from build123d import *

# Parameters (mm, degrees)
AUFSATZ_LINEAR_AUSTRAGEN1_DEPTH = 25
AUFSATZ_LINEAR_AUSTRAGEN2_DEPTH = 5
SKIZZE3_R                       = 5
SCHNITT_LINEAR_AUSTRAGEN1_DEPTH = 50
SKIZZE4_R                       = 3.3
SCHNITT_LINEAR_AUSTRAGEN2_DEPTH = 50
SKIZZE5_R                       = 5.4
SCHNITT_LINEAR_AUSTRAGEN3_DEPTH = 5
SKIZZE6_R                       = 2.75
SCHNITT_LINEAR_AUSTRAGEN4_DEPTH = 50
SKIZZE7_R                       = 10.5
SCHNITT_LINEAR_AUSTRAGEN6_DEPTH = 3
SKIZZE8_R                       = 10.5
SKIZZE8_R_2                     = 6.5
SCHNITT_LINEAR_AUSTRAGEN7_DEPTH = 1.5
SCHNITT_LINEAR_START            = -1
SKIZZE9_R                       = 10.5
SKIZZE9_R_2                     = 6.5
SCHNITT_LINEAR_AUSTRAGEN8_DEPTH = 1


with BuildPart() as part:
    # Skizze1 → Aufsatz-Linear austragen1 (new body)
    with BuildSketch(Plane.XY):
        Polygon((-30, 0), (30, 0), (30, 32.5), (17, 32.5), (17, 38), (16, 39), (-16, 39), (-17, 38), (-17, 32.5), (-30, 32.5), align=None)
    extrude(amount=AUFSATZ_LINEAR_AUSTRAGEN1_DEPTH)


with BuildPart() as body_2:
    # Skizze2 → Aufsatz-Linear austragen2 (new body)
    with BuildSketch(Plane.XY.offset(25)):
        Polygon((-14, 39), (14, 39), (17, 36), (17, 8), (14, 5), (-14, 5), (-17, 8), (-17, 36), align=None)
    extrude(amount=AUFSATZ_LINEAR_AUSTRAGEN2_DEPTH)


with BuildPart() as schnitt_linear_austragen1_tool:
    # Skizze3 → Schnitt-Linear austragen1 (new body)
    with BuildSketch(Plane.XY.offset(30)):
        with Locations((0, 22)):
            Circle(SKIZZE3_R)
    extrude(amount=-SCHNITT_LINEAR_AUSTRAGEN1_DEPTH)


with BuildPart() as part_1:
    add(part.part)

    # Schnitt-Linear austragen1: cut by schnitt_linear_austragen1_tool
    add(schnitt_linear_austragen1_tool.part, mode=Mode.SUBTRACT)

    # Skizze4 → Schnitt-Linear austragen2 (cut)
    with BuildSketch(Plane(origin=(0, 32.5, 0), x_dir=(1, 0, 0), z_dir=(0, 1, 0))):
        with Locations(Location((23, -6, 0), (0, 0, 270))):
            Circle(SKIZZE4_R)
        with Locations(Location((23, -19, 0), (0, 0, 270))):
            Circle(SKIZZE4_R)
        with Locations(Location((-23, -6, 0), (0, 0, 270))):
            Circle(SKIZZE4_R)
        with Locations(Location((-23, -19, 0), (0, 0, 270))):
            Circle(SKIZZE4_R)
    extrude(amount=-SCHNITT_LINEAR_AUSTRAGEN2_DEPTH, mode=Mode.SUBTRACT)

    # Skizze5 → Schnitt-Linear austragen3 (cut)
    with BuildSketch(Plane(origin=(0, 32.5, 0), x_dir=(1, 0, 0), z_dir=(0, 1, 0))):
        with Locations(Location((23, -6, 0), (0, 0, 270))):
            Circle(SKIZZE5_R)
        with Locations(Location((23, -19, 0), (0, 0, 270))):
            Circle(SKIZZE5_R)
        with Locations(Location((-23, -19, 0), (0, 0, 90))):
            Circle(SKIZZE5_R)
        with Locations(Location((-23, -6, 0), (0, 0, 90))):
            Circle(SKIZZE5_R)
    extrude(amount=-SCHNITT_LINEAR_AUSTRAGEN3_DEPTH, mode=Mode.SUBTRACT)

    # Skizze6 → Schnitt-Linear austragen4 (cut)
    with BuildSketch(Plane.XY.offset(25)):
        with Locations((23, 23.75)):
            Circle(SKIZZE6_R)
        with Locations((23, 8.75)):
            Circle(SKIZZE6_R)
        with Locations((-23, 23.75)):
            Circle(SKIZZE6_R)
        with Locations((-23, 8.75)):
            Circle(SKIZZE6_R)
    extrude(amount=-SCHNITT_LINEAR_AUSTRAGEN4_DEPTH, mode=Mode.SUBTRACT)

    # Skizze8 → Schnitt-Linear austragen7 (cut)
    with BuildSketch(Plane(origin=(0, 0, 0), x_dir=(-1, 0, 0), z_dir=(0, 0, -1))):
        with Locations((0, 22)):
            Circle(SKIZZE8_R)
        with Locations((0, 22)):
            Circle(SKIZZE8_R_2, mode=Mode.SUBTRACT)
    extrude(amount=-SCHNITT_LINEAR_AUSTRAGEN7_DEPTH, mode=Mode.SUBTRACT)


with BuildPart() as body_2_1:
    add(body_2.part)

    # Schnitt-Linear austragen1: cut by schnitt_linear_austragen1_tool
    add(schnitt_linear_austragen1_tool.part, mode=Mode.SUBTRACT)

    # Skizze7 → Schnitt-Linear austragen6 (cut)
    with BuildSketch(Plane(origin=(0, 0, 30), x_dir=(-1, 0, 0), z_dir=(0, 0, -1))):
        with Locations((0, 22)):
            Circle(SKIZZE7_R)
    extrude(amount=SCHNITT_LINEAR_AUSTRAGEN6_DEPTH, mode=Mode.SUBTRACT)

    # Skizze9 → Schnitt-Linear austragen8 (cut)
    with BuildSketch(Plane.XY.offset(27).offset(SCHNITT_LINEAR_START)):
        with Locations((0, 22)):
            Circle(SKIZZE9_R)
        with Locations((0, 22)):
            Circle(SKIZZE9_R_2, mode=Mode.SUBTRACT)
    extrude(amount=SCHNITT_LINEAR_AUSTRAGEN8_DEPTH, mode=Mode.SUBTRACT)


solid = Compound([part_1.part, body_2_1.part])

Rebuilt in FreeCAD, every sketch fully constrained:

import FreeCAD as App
import Part
import Sketcher
from FreeCAD import Vector
Q = App.Units.Quantity


def add_polygon(sketch, points):
    """Adds a closed chain of lines whose ends are joined by coincident constraints."""
    first, n = sketch.GeometryCount, len(points)
    for a, b in zip(points, points[1:] + points[:1]):
        sketch.addGeometry(Part.LineSegment(App.Vector(*a, 0), App.Vector(*b, 0)), False)
    for i in range(n):
        sketch.addConstraint(Sketcher.Constraint("Coincident", first + i, 2, first + (i + 1) % n, 1))

doc = App.newDocument("Part")
body = doc.addObject("PartDesign::Body", "Body")

# Sketch on XY plane
sketch1 = doc.addObject("Sketcher::SketchObject", "Sketch")
body.addObject(sketch1)
sketch1.AttachmentSupport = (doc.XY_Plane, [""])
sketch1.MapMode = "FlatFace"
add_polygon(sketch1, [(-30, 0), (30, 0), (30, 32.5), (17, 32.5), (17, 38), (16, 39), (-16, 39), (-17, 38), (-17, 32.5), (-30, 32.5)])  # lines 0-9
sketch1.addConstraint(Sketcher.Constraint("Horizontal", 0))
sketch1.addConstraint(Sketcher.Constraint("Vertical", 1))
sketch1.addConstraint(Sketcher.Constraint("Horizontal", 2))
sketch1.addConstraint(Sketcher.Constraint("Vertical", 3))
sketch1.addConstraint(Sketcher.Constraint("Horizontal", 5))
sketch1.addConstraint(Sketcher.Constraint("Vertical", 7))
sketch1.addConstraint(Sketcher.Constraint("Horizontal", 8))
sketch1.addConstraint(Sketcher.Constraint("Vertical", 9))
sketch1.addConstraint(Sketcher.Constraint("Symmetric", 0, 2, 9, 2, -1, 1))
sketch1.addConstraint(Sketcher.Constraint("Symmetric", 3, 2, 6, 2, -2))
sketch1.addConstraint(Sketcher.Constraint("Perpendicular", 4, 6))
sketch1.addConstraint(Sketcher.Constraint("Horizontal", 2, 2, 7, 2))
sketch1.addConstraint(Sketcher.Constraint("Equal", 4, 6))
sketch1.addConstraint(Sketcher.Constraint("DistanceX", 0, 1, 0, 2, Q("60 mm")))
sketch1.addConstraint(Sketcher.Constraint("DistanceX", 2, 2, 2, 1, Q("13 mm")))
sketch1.addConstraint(Sketcher.Constraint("DistanceX", 5, 2, 5, 1, Q("32 mm")))
sketch1.addConstraint(Sketcher.Constraint("DistanceY", 1, 1, 1, 2, Q("32.5 mm")))
sketch1.addConstraint(Sketcher.Constraint("DistanceY", 3, 1, 3, 2, Q("5.5 mm")))
pad1 = doc.addObject("PartDesign::Pad", "Pad")
body.addObject(pad1)
pad1.Profile = sketch1
pad1.Length = 25
body2 = doc.addObject("PartDesign::Body", "Body001")

# Sketch on XY plane
sketch2 = doc.addObject("Sketcher::SketchObject", "Sketch001")
body2.addObject(sketch2)
sketch2.AttachmentSupport = (doc.getObject("XY_Plane001"), [""])
sketch2.MapMode = "FlatFace"
sketch2.AttachmentOffset = App.Placement(Vector(0, 0, 25), App.Rotation())
add_polygon(sketch2, [(14, 39), (-14, 39), (-17, 36), (-17, 8), (-14, 5), (14, 5), (17, 8), (17, 36)])  # lines 0-7
sketch2.addConstraint(Sketcher.Constraint("Horizontal", 0))
sketch2.addConstraint(Sketcher.Constraint("Vertical", 2))
sketch2.addConstraint(Sketcher.Constraint("Horizontal", 4))
sketch2.addConstraint(Sketcher.Constraint("Vertical", 6))
sketch2.addConstraint(Sketcher.Constraint("Symmetric", 2, 2, 5, 2, -2))
sketch2.addConstraint(Sketcher.Constraint("Perpendicular", 1, 3))
sketch2.addConstraint(Sketcher.Constraint("Perpendicular", 3, 5))
sketch2.addConstraint(Sketcher.Constraint("Perpendicular", 5, 7))
sketch2.addConstraint(Sketcher.Constraint("Horizontal", 1, 2, 6, 2))
sketch2.addConstraint(Sketcher.Constraint("Vertical", 0, 2, 3, 2))
sketch2.addConstraint(Sketcher.Constraint("Vertical", 4, 2, 7, 2))
sketch2.addConstraint(Sketcher.Constraint("Equal", 4, 2))
sketch2.addConstraint(Sketcher.Constraint("DistanceX", 0, 2, 0, 1, Q("28 mm")))
sketch2.addConstraint(Sketcher.Constraint("DistanceY", -1, 1, 0, 2, Q("39 mm")))
sketch2.addConstraint(Sketcher.Constraint("DistanceX", 1, 2, -1, 1, Q("17 mm")))
pad2 = doc.addObject("PartDesign::Pad", "Pad001")
body2.addObject(pad2)
pad2.Profile = sketch2
pad2.Length = 5
body3 = doc.addObject("PartDesign::Body", "Body002")

# Sketch on XY plane
sketch3 = doc.addObject("Sketcher::SketchObject", "Sketch002")
body3.addObject(sketch3)
sketch3.AttachmentSupport = (doc.getObject("XY_Plane002"), [""])
sketch3.MapMode = "FlatFace"
sketch3.AttachmentOffset = App.Placement(Vector(0, 0, 30), App.Rotation())
sketch3.addGeometry(Part.Circle(Vector(0, 22, 0), Vector(0, 0, 1), 5), False)
sketch3.addConstraint(Sketcher.Constraint("PointOnObject", 0, 3, -2))
sketch3.addConstraint(Sketcher.Constraint("Diameter", 0, Q("10 mm")))
sketch3.addConstraint(Sketcher.Constraint("DistanceY", -1, 1, 0, 3, Q("22 mm")))
pad3 = doc.addObject("PartDesign::Pad", "Pad002")
body3.addObject(pad3)
pad3.Profile = sketch3
pad3.Length = 50
pad3.Reversed = True
doc.recompute()

body4 = doc.addObject("PartDesign::Body", "Body003")
body4.BaseFeature = body3
boolean = doc.addObject("PartDesign::Boolean", "Boolean")
body.addObject(boolean)
boolean.Type = "Cut"
boolean.addObjects([body4])
doc.recompute()

# Sketch on XZ plane
sketch4 = doc.addObject("Sketcher::SketchObject", "Sketch003")
body.addObject(sketch4)
sketch4.AttachmentSupport = (doc.XZ_Plane, [""])
sketch4.MapMode = "FlatFace"
sketch4.AttachmentOffset = App.Placement(Vector(0, 0, -32.5), App.Rotation())
sketch4.addGeometry(Part.Circle(Vector(23, 6, 0), Vector(0, 0, 1), 3.3), False)
sketch4.addGeometry(Part.Circle(Vector(23, 19, 0), Vector(0, 0, 1), 3.3), False)
sketch4.addGeometry(Part.Circle(Vector(-23, 6, 0), Vector(0, 0, 1), 3.3), False)
sketch4.addGeometry(Part.Circle(Vector(-23, 19, 0), Vector(0, 0, 1), 3.3), False)
sketch4.addConstraint(Sketcher.Constraint("Equal", 0, 1))
sketch4.addConstraint(Sketcher.Constraint("Equal", 1, 2))
sketch4.addConstraint(Sketcher.Constraint("Equal", 2, 3))
sketch4.addConstraint(Sketcher.Constraint("Symmetric", 0, 3, 2, 3, -2))
sketch4.addConstraint(Sketcher.Constraint("Symmetric", 1, 3, 3, 3, -2))
sketch4.addConstraint(Sketcher.Constraint("Vertical", 0, 3, 1, 3))
sketch4.addConstraint(Sketcher.Constraint("Diameter", 0, Q("6.6 mm")))
sketch4.addConstraint(Sketcher.Constraint("DistanceX", -1, 1, 0, 3, Q("23 mm")))
sketch4.addConstraint(Sketcher.Constraint("DistanceY", -1, 1, 0, 3, Q("6 mm")))
sketch4.addConstraint(Sketcher.Constraint("DistanceY", -1, 1, 1, 3, Q("19 mm")))
pocket1 = doc.addObject("PartDesign::Pocket", "Pocket")
body.addObject(pocket1)
pocket1.Profile = sketch4
pocket1.Length = 50
pocket1.Reversed = True

# Sketch on XZ plane
sketch5 = doc.addObject("Sketcher::SketchObject", "Sketch004")
body.addObject(sketch5)
sketch5.AttachmentSupport = (doc.XZ_Plane, [""])
sketch5.MapMode = "FlatFace"
sketch5.AttachmentOffset = App.Placement(Vector(0, 0, -32.5), App.Rotation())
sketch5.addGeometry(Part.Circle(Vector(23, 6, 0), Vector(0, 0, 1), 5), False)
sketch5.addGeometry(Part.Circle(Vector(23, 19, 0), Vector(0, 0, 1), 5), False)
sketch5.addGeometry(Part.Circle(Vector(-23, 19, 0), Vector(0, 0, 1), 5), False)
sketch5.addGeometry(Part.Circle(Vector(-23, 6, 0), Vector(0, 0, 1), 5), False)
sketch5.addConstraint(Sketcher.Constraint("Equal", 0, 1))
sketch5.addConstraint(Sketcher.Constraint("Equal", 1, 2))
sketch5.addConstraint(Sketcher.Constraint("Equal", 2, 3))
sketch5.addConstraint(Sketcher.Constraint("Symmetric", 1, 3, 2, 3, -2))
sketch5.addConstraint(Sketcher.Constraint("Symmetric", 0, 3, 3, 3, -2))
sketch5.addConstraint(Sketcher.Constraint("Vertical", 0, 3, 1, 3))
sketch5.addConstraint(Sketcher.Constraint("Diameter", 0, Q("10.8 mm")))
sketch5.addConstraint(Sketcher.Constraint("DistanceX", -1, 1, 0, 3, Q("23 mm")))
sketch5.addConstraint(Sketcher.Constraint("DistanceY", -1, 1, 0, 3, Q("6 mm")))
sketch5.addConstraint(Sketcher.Constraint("DistanceY", -1, 1, 1, 3, Q("19 mm")))
pocket2 = doc.addObject("PartDesign::Pocket", "Pocket001")
body.addObject(pocket2)
pocket2.Profile = sketch5
pocket2.Length = 5
pocket2.Reversed = True

# Sketch on XY plane
sketch6 = doc.addObject("Sketcher::SketchObject", "Sketch005")
body.addObject(sketch6)
sketch6.AttachmentSupport = (doc.XY_Plane, [""])
sketch6.MapMode = "FlatFace"
sketch6.AttachmentOffset = App.Placement(Vector(0, 0, 25), App.Rotation())
sketch6.addGeometry(Part.Circle(Vector(23, 23.8, 0), Vector(0, 0, 1), 2.8), False)
sketch6.addGeometry(Part.Circle(Vector(23, 8.8, 0), Vector(0, 0, 1), 2.8), False)
sketch6.addGeometry(Part.Circle(Vector(-23, 23.8, 0), Vector(0, 0, 1), 2.8), False)
sketch6.addGeometry(Part.Circle(Vector(-23, 8.8, 0), Vector(0, 0, 1), 2.8), False)
sketch6.addConstraint(Sketcher.Constraint("Equal", 0, 1))
sketch6.addConstraint(Sketcher.Constraint("Equal", 1, 2))
sketch6.addConstraint(Sketcher.Constraint("Equal", 2, 3))
sketch6.addConstraint(Sketcher.Constraint("Symmetric", 0, 3, 2, 3, -2))
sketch6.addConstraint(Sketcher.Constraint("Symmetric", 1, 3, 3, 3, -2))
sketch6.addConstraint(Sketcher.Constraint("Vertical", 0, 3, 1, 3))
sketch6.addConstraint(Sketcher.Constraint("Diameter", 0, Q("5.5 mm")))
sketch6.addConstraint(Sketcher.Constraint("DistanceX", -1, 1, 0, 3, Q("23 mm")))
sketch6.addConstraint(Sketcher.Constraint("DistanceY", 1, 3, 0, 3, Q("15 mm")))
sketch6.addConstraint(Sketcher.Constraint("DistanceY", -1, 1, 0, 3, Q("23.75 mm")))
pocket3 = doc.addObject("PartDesign::Pocket", "Pocket002")
body.addObject(pocket3)
pocket3.Profile = sketch6
pocket3.Length = 50

# Sketch on XY plane
sketch7 = doc.addObject("Sketcher::SketchObject", "Sketch006")
body.addObject(sketch7)
sketch7.AttachmentSupport = (doc.XY_Plane, [""])
sketch7.MapMode = "FlatFace"
sketch7.addGeometry(Part.Circle(Vector(0, 22, 0), Vector(0, 0, 1), 10), False)
sketch7.addGeometry(Part.Circle(Vector(0, 22, 0), Vector(0, 0, 1), 6), False)
sketch7.addConstraint(Sketcher.Constraint("Coincident", 1, 3, 0, 3))
sketch7.addConstraint(Sketcher.Constraint("PointOnObject", 0, 3, -2))
sketch7.addConstraint(Sketcher.Constraint("Diameter", 0, Q("21 mm")))
sketch7.addConstraint(Sketcher.Constraint("Diameter", 1, Q("13 mm")))
sketch7.addConstraint(Sketcher.Constraint("DistanceY", -1, 1, 0, 3, Q("22 mm")))
pocket4 = doc.addObject("PartDesign::Pocket", "Pocket003")
body.addObject(pocket4)
pocket4.Profile = sketch7
pocket4.Length = 1.5
pocket4.Reversed = True
doc.recompute()

boolean2 = doc.addObject("PartDesign::Boolean", "Boolean001")
body2.addObject(boolean2)
boolean2.Type = "Cut"
boolean2.addObjects([body3])

# Sketch on XY plane
sketch8 = doc.addObject("Sketcher::SketchObject", "Sketch007")
body2.addObject(sketch8)
sketch8.AttachmentSupport = (doc.getObject("XY_Plane001"), [""])
sketch8.MapMode = "FlatFace"
sketch8.AttachmentOffset = App.Placement(Vector(0, 0, 30), App.Rotation())
sketch8.addGeometry(Part.Circle(Vector(0, 22, 0), Vector(0, 0, 1), 10), False)
sketch8.addConstraint(Sketcher.Constraint("PointOnObject", 0, 3, -2))
sketch8.addConstraint(Sketcher.Constraint("Diameter", 0, Q("21 mm")))
sketch8.addConstraint(Sketcher.Constraint("DistanceY", -1, 1, 0, 3, Q("22 mm")))
pocket5 = doc.addObject("PartDesign::Pocket", "Pocket004")
body2.addObject(pocket5)
pocket5.Profile = sketch8
pocket5.Length = 3

# Sketch on XY plane
sketch9 = doc.addObject("Sketcher::SketchObject", "Sketch008")
body2.addObject(sketch9)
sketch9.AttachmentSupport = (doc.getObject("XY_Plane001"), [""])
sketch9.MapMode = "FlatFace"
sketch9.AttachmentOffset = App.Placement(Vector(0, 0, 26), App.Rotation())
sketch9.addGeometry(Part.Circle(Vector(0, 22, 0), Vector(0, 0, 1), 10), False)
sketch9.addGeometry(Part.Circle(Vector(0, 22, 0), Vector(0, 0, 1), 6), False)
sketch9.addConstraint(Sketcher.Constraint("Coincident", 1, 3, 0, 3))
sketch9.addConstraint(Sketcher.Constraint("PointOnObject", 0, 3, -2))
sketch9.addConstraint(Sketcher.Constraint("Diameter", 0, Q("21 mm")))
sketch9.addConstraint(Sketcher.Constraint("Diameter", 1, Q("13 mm")))
sketch9.addConstraint(Sketcher.Constraint("DistanceY", -1, 1, 0, 3, Q("22 mm")))
pocket6 = doc.addObject("PartDesign::Pocket", "Pocket005")
body2.addObject(pocket6)
pocket6.Profile = sketch9
pocket6.Length = 1
pocket6.Reversed = True

doc.recompute()
